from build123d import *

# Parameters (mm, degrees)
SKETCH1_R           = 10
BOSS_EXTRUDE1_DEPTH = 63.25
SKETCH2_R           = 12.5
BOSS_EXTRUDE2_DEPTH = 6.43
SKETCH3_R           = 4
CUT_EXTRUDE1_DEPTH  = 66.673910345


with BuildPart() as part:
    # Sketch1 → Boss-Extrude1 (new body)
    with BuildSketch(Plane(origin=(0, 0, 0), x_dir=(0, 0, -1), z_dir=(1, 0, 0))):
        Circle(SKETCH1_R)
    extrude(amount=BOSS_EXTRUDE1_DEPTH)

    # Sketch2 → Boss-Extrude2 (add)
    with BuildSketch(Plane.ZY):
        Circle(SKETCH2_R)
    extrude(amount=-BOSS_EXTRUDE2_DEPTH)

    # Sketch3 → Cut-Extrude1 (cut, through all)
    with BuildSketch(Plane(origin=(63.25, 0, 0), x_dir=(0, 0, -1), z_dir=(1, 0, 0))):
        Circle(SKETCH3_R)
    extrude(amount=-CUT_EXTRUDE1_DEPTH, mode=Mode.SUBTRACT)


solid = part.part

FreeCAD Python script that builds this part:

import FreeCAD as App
import Part
import Sketcher

V = App.Vector
Q = App.Units.Quantity

doc = App.newDocument("Part")
body = doc.addObject("PartDesign::Body", "Body")

# Sketch on YZ plane
sketch1 = body.newObject("Sketcher::SketchObject", "Sketch")
sketch1.AttachmentSupport = (doc.getObject("YZ_Plane"), [""])
sketch1.MapMode = "FlatFace"
sketch1.addGeometry(Part.Circle(V(0, 0, 0), V(0, 0, 1), 10), False)
sketch1.addConstraint([
    Sketcher.Constraint("Coincident", 0, 3, -1, 1),
    Sketcher.Constraint("Diameter", 0, Q("20 mm")),
])
pad1 = body.newObject("PartDesign::Pad", "Pad")
pad1.Profile = sketch1
pad1.Length = 63.25

# Sketch on YZ plane
sketch2 = body.newObject("Sketcher::SketchObject", "Sketch001")
sketch2.AttachmentSupport = (doc.getObject("YZ_Plane"), [""])
sketch2.MapMode = "FlatFace"
sketch2.addGeometry(Part.Circle(V(0, 0, 0), V(0, 0, 1), 12), False)
sketch2.addConstraint([
    Sketcher.Constraint("Coincident", 0, 3, -1, 1),
    Sketcher.Constraint("Diameter", 0, Q("25 mm")),
])
pad2 = body.newObject("PartDesign::Pad", "Pad001")
pad2.Profile = sketch2
pad2.Length = 6.43

# Sketch on YZ plane
sketch3 = body.newObject("Sketcher::SketchObject", "Sketch002")
sketch3.AttachmentSupport = (doc.getObject("YZ_Plane"), [""])
sketch3.MapMode = "FlatFace"
sketch3.AttachmentOffset = App.Placement(V(0, 0, 63.25), App.Rotation())
sketch3.addGeometry(Part.Circle(V(0, 0, 0), V(0, 0, 1), 4), False)
sketch3.addConstraint([
    Sketcher.Constraint("Coincident", 0, 3, -1, 1),
    Sketcher.Constraint("Diameter", 0, Q("8 mm")),
])
pocket1 = body.newObject("PartDesign::Pocket", "Pocket")
pocket1.Profile = sketch3
pocket1.Type = "ThroughAll"

doc.recompute()
